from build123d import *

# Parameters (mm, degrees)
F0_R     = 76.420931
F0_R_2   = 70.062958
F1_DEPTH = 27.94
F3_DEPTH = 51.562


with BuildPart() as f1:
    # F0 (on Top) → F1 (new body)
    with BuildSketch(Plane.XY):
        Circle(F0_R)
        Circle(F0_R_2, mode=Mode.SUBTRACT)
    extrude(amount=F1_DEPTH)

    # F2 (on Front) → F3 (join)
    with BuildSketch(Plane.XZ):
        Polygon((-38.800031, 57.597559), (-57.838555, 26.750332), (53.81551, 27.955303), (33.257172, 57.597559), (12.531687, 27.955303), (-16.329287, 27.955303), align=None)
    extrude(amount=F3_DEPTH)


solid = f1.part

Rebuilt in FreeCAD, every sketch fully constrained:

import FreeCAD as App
import Part
import Sketcher

V = App.Vector
Q = App.Units.Quantity


def add_polygon(sketch, points):
    """Adds a closed chain of lines whose ends are joined by coincident constraints."""
    first, n = sketch.GeometryCount, len(points)
    for a, b in zip(points, points[1:] + points[:1]):
        sketch.addGeometry(Part.LineSegment(App.Vector(*a, 0), App.Vector(*b, 0)), False)
    for i in range(n):
        sketch.addConstraint(Sketcher.Constraint("Coincident", first + i, 2, first + (i + 1) % n, 1))

doc = App.newDocument("Part")
body = doc.addObject("PartDesign::Body", "Body")

sketch1 = doc.addObject("Sketcher::SketchObject", "Sketch")
body.addObject(sketch1)
sketch1.AttachmentSupport = (doc.XY_Plane, [""])
sketch1.MapMode = "FlatFace"
sketch1.addGeometry([
    Part.Circle(V(0, 0, 0), V(0, 0, 1), 76.420931),
    Part.Circle(V(0, 0, 0), V(0, 0, 1), 70.062958),
], False)
sketch1.addConstraint([
    Sketcher.Constraint("Coincident", 0, 3, -1, 1),
    Sketcher.Constraint("Coincident", 1, 3, -1, 1),
    Sketcher.Constraint("Diameter", 0, 152.841862),
    Sketcher.Constraint("Diameter", 1, 140.125916),
])
pad1 = doc.addObject("PartDesign::Pad", "Pad")
body.addObject(pad1)
pad1.Profile = sketch1
pad1.Length = Q("1.1 in")

sketch2 = doc.addObject("Sketcher::SketchObject", "Sketch001")
body.addObject(sketch2)
sketch2.AttachmentSupport = (doc.XZ_Plane, [""])
sketch2.MapMode = "FlatFace"
add_polygon(sketch2, [(-38.800031, 57.597559), (-57.838555, 26.750332), (53.81551, 27.955303), (33.257172, 57.597559), (12.531687, 27.955303), (-16.329287, 27.955303)])
sketch2.addConstraint([
    Sketcher.Constraint("Horizontal", 4),
    Sketcher.Constraint("Horizontal", 1, 2, 3, 2),
    Sketcher.Constraint("Horizontal", 2, 2, 5, 2),
    Sketcher.Constraint("Distance", 0, 36.24937),
    Sketcher.Constraint("DistanceX", 4, 2, 4, 1, 28.860974),
    Sketcher.Constraint("DistanceY", -1, 1, 0, 2, 26.750332),
    Sketcher.Constraint("DistanceX", -1, 1, 1, 2, 53.81551),
    Sketcher.Constraint("DistanceX", -1, 1, 2, 2, 33.257172),
    Sketcher.Constraint("DistanceY", -1, 1, 2, 2, 57.597559),
    Sketcher.Constraint("DistanceX", 5, 2, -1, 1, 38.800031),
    Sketcher.Constraint("DistanceY", 0, 2, 1, 2, 1.204971),
    Sketcher.Constraint("DistanceX", 4, 2, 2, 2, 49.586459),
])
pad2 = doc.addObject("PartDesign::Pad", "Pad001")
body.addObject(pad2)
pad2.Profile = sketch2
pad2.Length = Q("2.03 in")

doc.recompute()
